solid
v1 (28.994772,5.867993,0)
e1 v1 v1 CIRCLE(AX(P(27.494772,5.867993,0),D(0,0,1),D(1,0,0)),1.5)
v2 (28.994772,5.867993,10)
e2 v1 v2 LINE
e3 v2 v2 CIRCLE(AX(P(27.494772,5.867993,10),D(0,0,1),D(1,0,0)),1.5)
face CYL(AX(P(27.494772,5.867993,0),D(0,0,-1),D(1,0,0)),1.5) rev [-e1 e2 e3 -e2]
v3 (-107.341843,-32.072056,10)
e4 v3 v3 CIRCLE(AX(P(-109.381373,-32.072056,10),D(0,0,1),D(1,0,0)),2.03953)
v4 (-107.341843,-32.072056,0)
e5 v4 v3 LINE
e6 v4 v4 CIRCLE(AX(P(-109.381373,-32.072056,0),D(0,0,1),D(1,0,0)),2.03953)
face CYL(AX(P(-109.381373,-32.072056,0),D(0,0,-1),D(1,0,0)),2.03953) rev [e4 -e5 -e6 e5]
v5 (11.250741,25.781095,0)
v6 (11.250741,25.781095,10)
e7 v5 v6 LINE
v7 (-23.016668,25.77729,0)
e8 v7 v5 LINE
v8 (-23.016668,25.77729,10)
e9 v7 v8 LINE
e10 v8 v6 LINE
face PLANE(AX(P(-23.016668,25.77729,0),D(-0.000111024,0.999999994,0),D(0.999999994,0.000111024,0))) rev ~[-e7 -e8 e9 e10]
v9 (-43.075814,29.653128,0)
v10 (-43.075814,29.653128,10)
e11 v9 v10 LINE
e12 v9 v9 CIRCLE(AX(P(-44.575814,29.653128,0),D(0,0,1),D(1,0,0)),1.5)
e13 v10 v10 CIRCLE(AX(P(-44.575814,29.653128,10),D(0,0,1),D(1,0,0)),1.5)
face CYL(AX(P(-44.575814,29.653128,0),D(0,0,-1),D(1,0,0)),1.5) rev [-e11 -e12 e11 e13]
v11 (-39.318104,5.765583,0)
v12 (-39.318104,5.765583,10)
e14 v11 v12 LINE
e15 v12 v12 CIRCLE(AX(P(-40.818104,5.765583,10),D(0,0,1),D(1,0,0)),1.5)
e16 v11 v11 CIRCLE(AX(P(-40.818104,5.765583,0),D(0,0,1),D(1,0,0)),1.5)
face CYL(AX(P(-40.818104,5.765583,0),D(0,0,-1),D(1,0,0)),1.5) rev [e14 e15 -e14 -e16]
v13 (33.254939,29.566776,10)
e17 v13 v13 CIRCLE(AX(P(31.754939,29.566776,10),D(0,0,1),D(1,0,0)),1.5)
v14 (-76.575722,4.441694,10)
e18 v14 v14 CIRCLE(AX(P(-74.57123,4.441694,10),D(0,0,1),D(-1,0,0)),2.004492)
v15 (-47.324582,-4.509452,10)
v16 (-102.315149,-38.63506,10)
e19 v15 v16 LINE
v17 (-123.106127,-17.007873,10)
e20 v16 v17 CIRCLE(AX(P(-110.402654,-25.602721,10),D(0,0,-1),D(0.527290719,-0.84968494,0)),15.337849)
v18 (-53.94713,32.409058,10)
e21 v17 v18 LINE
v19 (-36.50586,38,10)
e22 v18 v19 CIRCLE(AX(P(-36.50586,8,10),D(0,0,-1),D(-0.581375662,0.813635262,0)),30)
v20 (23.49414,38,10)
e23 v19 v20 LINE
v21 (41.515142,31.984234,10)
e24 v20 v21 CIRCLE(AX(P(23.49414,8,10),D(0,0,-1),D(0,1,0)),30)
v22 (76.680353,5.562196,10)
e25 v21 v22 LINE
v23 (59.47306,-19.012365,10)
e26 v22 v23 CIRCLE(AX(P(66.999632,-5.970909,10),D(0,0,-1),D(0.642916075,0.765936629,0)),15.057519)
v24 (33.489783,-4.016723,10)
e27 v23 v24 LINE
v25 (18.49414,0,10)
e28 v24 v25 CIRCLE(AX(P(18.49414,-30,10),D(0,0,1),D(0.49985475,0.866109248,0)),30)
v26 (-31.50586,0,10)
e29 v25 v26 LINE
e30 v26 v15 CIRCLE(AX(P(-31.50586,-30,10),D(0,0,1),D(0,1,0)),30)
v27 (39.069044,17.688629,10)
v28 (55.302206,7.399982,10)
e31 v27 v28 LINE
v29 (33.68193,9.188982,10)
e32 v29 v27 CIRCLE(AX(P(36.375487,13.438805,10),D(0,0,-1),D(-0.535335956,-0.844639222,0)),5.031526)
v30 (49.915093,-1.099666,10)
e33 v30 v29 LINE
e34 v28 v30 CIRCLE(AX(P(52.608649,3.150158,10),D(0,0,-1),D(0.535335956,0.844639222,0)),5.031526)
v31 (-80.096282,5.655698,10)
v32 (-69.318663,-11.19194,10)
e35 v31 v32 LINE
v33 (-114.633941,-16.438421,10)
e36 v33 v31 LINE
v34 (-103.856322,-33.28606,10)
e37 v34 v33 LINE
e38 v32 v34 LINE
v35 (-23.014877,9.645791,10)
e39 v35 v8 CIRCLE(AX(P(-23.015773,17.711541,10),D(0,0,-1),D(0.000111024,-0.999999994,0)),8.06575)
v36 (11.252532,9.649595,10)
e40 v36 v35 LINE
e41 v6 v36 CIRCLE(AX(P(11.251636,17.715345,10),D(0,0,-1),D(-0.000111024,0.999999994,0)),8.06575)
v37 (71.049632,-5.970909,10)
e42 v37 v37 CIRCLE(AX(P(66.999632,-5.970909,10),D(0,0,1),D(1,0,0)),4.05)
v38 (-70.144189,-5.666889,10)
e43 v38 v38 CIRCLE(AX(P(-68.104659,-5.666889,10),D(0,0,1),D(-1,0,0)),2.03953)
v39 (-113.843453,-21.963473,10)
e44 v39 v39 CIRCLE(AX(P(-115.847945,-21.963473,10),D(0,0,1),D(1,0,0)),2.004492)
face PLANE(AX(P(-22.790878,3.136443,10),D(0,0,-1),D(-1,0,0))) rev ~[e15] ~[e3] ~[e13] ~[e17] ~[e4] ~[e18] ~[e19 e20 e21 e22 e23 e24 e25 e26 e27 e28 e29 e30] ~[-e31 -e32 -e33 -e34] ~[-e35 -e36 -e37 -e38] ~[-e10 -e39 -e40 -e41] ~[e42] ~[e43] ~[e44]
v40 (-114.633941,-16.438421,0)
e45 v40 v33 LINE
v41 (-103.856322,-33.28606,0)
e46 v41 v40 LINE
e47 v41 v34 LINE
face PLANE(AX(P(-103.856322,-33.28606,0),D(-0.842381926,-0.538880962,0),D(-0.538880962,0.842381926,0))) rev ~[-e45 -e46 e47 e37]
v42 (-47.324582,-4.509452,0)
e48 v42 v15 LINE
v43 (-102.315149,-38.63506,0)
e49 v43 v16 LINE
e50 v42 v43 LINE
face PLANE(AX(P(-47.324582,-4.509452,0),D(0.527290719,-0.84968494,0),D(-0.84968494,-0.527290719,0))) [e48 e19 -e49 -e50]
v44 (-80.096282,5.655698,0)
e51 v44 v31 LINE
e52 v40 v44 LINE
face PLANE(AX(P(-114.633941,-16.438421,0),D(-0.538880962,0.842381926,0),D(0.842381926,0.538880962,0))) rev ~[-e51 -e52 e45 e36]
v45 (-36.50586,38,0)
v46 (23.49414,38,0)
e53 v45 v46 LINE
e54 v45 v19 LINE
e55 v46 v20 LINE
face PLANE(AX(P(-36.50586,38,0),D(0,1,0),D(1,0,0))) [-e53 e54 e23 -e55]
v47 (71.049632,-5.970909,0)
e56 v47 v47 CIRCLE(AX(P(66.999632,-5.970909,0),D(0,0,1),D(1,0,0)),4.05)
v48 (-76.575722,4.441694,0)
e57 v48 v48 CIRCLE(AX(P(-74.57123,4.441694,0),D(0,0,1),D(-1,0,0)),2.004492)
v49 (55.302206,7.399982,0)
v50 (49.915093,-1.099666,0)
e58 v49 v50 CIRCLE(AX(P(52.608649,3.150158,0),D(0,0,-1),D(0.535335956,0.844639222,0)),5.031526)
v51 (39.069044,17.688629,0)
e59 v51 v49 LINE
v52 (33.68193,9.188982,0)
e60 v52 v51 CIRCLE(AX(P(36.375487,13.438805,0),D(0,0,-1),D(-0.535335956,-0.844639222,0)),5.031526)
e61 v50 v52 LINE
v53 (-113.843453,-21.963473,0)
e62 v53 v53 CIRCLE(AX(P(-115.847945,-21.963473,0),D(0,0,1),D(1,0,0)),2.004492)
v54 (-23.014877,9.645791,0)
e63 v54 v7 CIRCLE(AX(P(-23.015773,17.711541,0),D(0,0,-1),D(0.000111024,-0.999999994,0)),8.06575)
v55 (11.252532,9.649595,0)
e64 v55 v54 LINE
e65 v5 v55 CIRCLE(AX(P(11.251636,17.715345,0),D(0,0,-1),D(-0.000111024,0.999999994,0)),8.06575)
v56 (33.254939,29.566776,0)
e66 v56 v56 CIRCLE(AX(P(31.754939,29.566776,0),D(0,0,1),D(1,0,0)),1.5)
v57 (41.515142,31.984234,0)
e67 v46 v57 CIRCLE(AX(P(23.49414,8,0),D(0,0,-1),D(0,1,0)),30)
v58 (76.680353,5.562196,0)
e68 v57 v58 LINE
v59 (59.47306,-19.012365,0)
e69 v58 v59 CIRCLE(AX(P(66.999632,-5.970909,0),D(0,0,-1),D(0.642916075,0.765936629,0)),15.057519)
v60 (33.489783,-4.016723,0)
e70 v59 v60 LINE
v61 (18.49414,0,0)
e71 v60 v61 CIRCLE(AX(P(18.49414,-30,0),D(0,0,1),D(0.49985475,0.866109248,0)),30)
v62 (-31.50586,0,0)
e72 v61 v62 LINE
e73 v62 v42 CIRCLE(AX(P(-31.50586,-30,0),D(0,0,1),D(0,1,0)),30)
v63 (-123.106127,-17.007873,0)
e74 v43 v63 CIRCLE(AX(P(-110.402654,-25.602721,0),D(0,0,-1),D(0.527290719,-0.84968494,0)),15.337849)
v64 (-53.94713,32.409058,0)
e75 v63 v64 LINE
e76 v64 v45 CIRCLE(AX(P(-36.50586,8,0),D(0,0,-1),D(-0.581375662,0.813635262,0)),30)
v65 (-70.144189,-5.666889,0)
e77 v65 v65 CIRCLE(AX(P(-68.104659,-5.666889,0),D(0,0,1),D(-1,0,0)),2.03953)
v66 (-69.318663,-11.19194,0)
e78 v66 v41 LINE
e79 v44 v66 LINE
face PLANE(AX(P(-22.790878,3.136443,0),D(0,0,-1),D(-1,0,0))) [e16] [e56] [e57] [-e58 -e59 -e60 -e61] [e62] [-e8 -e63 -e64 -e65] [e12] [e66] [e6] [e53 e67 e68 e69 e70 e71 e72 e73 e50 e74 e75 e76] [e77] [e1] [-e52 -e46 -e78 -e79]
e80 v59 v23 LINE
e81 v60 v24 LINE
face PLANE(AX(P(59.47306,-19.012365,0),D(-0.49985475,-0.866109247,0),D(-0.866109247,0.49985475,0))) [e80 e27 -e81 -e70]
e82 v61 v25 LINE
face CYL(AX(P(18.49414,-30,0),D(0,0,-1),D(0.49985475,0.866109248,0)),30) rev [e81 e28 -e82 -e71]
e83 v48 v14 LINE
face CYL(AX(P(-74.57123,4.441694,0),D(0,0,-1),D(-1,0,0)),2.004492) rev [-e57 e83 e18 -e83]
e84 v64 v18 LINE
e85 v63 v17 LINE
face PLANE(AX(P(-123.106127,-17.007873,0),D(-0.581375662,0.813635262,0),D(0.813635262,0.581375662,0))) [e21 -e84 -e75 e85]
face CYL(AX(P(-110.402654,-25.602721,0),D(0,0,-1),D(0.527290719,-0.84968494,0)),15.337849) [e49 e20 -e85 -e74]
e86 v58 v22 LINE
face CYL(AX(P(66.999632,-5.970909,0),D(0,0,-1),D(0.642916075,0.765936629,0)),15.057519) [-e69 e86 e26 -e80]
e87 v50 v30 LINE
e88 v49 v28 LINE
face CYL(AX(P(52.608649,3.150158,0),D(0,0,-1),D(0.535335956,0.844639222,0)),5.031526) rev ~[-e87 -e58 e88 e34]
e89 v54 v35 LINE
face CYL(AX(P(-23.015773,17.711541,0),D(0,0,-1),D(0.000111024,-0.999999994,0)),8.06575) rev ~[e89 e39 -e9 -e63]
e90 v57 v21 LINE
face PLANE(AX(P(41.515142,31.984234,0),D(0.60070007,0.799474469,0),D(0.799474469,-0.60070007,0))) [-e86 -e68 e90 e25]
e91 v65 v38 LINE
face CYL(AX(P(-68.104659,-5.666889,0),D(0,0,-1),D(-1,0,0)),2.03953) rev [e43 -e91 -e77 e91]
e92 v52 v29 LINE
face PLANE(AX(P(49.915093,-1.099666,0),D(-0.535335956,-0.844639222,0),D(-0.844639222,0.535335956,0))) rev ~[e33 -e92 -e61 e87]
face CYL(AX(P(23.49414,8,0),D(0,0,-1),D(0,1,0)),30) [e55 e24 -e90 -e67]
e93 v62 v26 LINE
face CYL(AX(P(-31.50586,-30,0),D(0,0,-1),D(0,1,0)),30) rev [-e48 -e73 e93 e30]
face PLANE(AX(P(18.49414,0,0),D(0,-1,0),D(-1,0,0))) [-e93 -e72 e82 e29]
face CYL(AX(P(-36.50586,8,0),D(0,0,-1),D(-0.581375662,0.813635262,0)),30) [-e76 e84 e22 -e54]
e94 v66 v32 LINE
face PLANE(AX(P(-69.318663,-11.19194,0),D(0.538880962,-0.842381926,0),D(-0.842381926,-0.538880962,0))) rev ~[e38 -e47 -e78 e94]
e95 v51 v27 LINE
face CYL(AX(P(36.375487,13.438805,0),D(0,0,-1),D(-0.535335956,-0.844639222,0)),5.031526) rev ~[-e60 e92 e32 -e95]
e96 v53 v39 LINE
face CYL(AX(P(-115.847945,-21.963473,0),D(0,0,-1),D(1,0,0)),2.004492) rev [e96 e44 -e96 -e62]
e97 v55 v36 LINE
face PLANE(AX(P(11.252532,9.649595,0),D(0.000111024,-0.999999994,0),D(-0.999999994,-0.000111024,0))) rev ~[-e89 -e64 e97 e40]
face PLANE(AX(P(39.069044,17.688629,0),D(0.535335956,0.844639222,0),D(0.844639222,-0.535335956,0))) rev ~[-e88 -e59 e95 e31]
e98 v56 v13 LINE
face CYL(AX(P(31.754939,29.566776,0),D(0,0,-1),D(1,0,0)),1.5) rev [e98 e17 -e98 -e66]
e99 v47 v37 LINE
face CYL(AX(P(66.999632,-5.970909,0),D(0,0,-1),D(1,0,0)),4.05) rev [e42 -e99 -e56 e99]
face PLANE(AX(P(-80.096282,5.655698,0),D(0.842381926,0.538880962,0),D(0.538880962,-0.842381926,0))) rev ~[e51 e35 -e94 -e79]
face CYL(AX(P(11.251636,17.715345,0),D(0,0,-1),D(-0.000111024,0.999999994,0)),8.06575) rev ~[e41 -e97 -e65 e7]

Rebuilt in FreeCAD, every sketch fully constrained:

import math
import FreeCAD as App
import Part
import Sketcher
from FreeCAD import Vector


def add_polygon(sketch, points):
    """Adds a closed chain of lines whose ends are joined by coincident constraints."""
    first, n = sketch.GeometryCount, len(points)
    for a, b in zip(points, points[1:] + points[:1]):
        sketch.addGeometry(Part.LineSegment(App.Vector(*a, 0), App.Vector(*b, 0)), False)
    for i in range(n):
        sketch.addConstraint(Sketcher.Constraint("Coincident", first + i, 2, first + (i + 1) % n, 1))

doc = App.newDocument("Part")
params = doc.addObject("Spreadsheet::Sheet", "Params")
for row, (alias, value) in enumerate([
    ("sketch1_diameter", "3 mm"),
    ("sketch1_diameter2", "3 mm"),
    ("sketch1_diameter3", "3 mm"),
    ("sketch1_diameter4", "3 mm"),
    ("sketch1_radius", "30 mm"),
    ("pad1_length", "10 mm"),
], start=1):
    params.set(f"A{row}", alias)
    params.set(f"B{row}", "=" + value)
    params.setAlias(f"B{row}", alias)

body = doc.addObject("PartDesign::Body", "Body")

sketch1 = doc.addObject("Sketcher::SketchObject", "Sketch")
body.addObject(sketch1)
sketch1.AttachmentSupport = (doc.XY_Plane, [""])
sketch1.MapMode = "FlatFace"
sketch1.addGeometry(Part.LineSegment(Vector(23.49414, 38, 0), Vector(-36.50586, 38, 0)), False)
sketch1.addGeometry(Part.ArcOfCircle(Part.Circle(Vector(-36.50586, 8, 0), Vector(0, 0, 1), 30), math.radians(90), math.radians(125.547358)), False)
sketch1.addGeometry(Part.LineSegment(Vector(-53.94713, 32.409058, 0), Vector(-123.106127, -17.007873, 0)), False)
sketch1.addGeometry(Part.ArcOfCircle(Part.Circle(Vector(-110.402654, -25.602721, 0), Vector(0, 0, 1), 15.337849), math.radians(145.918716), math.radians(301.822582)), False)
sketch1.addGeometry(Part.LineSegment(Vector(-102.315149, -38.63506, 0), Vector(-47.324582, -4.509452, 0)), False)
sketch1.addGeometry(Part.ArcOfCircle(Part.Circle(Vector(-31.50586, -30, 0), Vector(0, 0, 1), 30), math.radians(90), math.radians(121.822582)), False)
sketch1.addGeometry(Part.LineSegment(Vector(-31.50586, 0, 0), Vector(18.49414, 0, 0)), False)
sketch1.addGeometry(Part.ArcOfCircle(Part.Circle(Vector(18.49414, -30, 0), Vector(0, 0, 1), 30), math.radians(60.009609), math.radians(90)), False)
sketch1.addGeometry(Part.LineSegment(Vector(33.489783, -4.016723, 0), Vector(59.47306, -19.012365, 0)), False)
sketch1.addGeometry(Part.ArcOfCircle(Part.Circle(Vector(66.999632, -5.970909, 0), Vector(0, 0, 1), 15.057519), math.radians(-119.990391), math.radians(49.990391)), False)
sketch1.addGeometry(Part.LineSegment(Vector(76.680353, 5.562196, 0), Vector(41.515142, 31.984234, 0)), False)
sketch1.addGeometry(Part.ArcOfCircle(Part.Circle(Vector(23.49414, 8, 0), Vector(0, 0, 1), 30), math.radians(53.079947), math.radians(90)), False)
sketch1.addGeometry(Part.Circle(Vector(66.999632, -5.970909, 0), Vector(0, 0, 1), 4.05), False)
sketch1.addGeometry(Part.Circle(Vector(-109.381373, -32.072056, 0), Vector(0, 0, 1), 2.03953), False)
sketch1.addGeometry(Part.Circle(Vector(-115.847945, -21.963473, 0), Vector(0, 0, 1), 2.004492), False)
sketch1.addGeometry(Part.Circle(Vector(-68.104659, -5.666889, 0), Vector(0, 0, 1), 2.03953), False)
add_polygon(sketch1, [(-114.633941, -16.438421), (-80.096282, 5.655698), (-69.318663, -11.19194), (-103.856322, -33.28606)])
sketch1.addGeometry(Part.Circle(Vector(27.494772, 5.867993, 0), Vector(0, 0, 1), 1.5), False)
sketch1.addGeometry(Part.LineSegment(Vector(39.069044, 17.688629, 0), Vector(55.302206, 7.399982, 0)), False)
sketch1.addGeometry(Part.ArcOfCircle(Part.Circle(Vector(52.608649, 3.150158, 0), Vector(0, 0, 1), 5.031526), math.radians(-122.366698), math.radians(57.633302)), False)
sketch1.addGeometry(Part.LineSegment(Vector(49.915093, -1.099666, 0), Vector(33.68193, 9.188982, 0)), False)
sketch1.addGeometry(Part.ArcOfCircle(Part.Circle(Vector(36.375487, 13.438805, 0), Vector(0, 0, 1), 5.031526), math.radians(57.633302), math.radians(237.633302)), False)
sketch1.addGeometry(Part.Circle(Vector(31.754939, 29.566776, 0), Vector(0, 0, 1), 1.5), False)
sketch1.addGeometry(Part.LineSegment(Vector(-23.016668, 25.77729, 0), Vector(11.250741, 25.781095, 0)), False)
sketch1.addGeometry(Part.ArcOfCircle(Part.Circle(Vector(11.251636, 17.715345, 0), Vector(0, 0, 1), 8.06575), math.radians(-89.993639), math.radians(90.006361)), False)
sketch1.addGeometry(Part.LineSegment(Vector(11.252532, 9.649595, 0), Vector(-23.014877, 9.645791, 0)), False)
sketch1.addGeometry(Part.ArcOfCircle(Part.Circle(Vector(-23.015773, 17.711541, 0), Vector(0, 0, 1), 8.06575), math.radians(90.006361), math.radians(270.006361)), False)
sketch1.addGeometry(Part.Circle(Vector(-40.818104, 5.765583, 0), Vector(0, 0, 1), 1.5), False)
sketch1.addGeometry(Part.Circle(Vector(-74.57123, 4.441694, 0), Vector(0, 0, 1), 2.004492), False)
sketch1.addGeometry(Part.Circle(Vector(-44.575814, 29.653128, 0), Vector(0, 0, 1), 1.5), False)
sketch1.addConstraint([
    Sketcher.Constraint("Coincident", 0, 2, 1, 1),
    Sketcher.Constraint("Coincident", 1, 2, 2, 1),
    Sketcher.Constraint("Coincident", 2, 2, 3, 1),
    Sketcher.Constraint("Coincident", 3, 2, 4, 1),
    Sketcher.Constraint("Coincident", 4, 2, 5, 2),
    Sketcher.Constraint("Coincident", 5, 1, 6, 1),
    Sketcher.Constraint("Coincident", 6, 2, 7, 2),
    Sketcher.Constraint("Coincident", 7, 1, 8, 1),
    Sketcher.Constraint("Coincident", 8, 2, 9, 1),
    Sketcher.Constraint("Coincident", 9, 2, 10, 1),
    Sketcher.Constraint("Coincident", 10, 2, 11, 1),
    Sketcher.Constraint("Coincident", 11, 2, 0, 1),
    Sketcher.Constraint("Coincident", 21, 2, 22, 2),
    Sketcher.Constraint("Coincident", 22, 1, 23, 1),
    Sketcher.Constraint("Coincident", 23, 2, 24, 2),
    Sketcher.Constraint("Coincident", 24, 1, 21, 1),
    Sketcher.Constraint("Coincident", 26, 2, 27, 2),
    Sketcher.Constraint("Coincident", 27, 1, 28, 1),
    Sketcher.Constraint("Coincident", 28, 2, 29, 2),
    Sketcher.Constraint("Coincident", 29, 1, 26, 1),
    Sketcher.Constraint("Horizontal", 0),
    Sketcher.Constraint("Horizontal", 6),
    Sketcher.Constraint("Coincident", 12, 3, 9, 3),
    Sketcher.Constraint("PointOnObject", 5, 1, -1),
    Sketcher.Constraint("Diameter", 20, 3.0),
    Sketcher.Constraint("Diameter", 25, 3.0),
    Sketcher.Constraint("Diameter", 30, 3.0),
    Sketcher.Constraint("Diameter", 32, 3.0),
    Sketcher.Constraint("Radius", 1, 30.0),
    Sketcher.Constraint("Radius", 5, 30.0),
    Sketcher.Constraint("Radius", 7, 30.0),
    Sketcher.Constraint("Radius", 11, 30.0),
    Sketcher.Constraint("Diameter", 12, 8.1),
    Sketcher.Constraint("DistanceX", 0, 2, 0, 1, 60.0),
    Sketcher.Constraint("DistanceX", 6, 1, 6, 2, 50.0),
    Sketcher.Constraint("Distance", 2, 85.0),
    Sketcher.Constraint("Distance", 8, 30.0),
    Sketcher.Constraint("Distance", 16, 41.0),
    Sketcher.Constraint("Distance", 17, 20.0),
    Sketcher.Constraint("Distance", 18, 41.0),
    Sketcher.Constraint("Distance", 19, 20.0),
    Sketcher.Constraint("DistanceY", -1, 1, 1, 3, 8.0),
    Sketcher.Constraint("DistanceX", 1, 3, 5, 3, 5.0),
    Sketcher.Constraint("DistanceX", 5, 3, 7, 3, 50.0),
    Sketcher.Constraint("DistanceX", 7, 3, 11, 3, 5.0),
    Sketcher.Constraint("DistanceX", 1, 3, 5, 1, 5.0),
    Sketcher.Constraint("Diameter", 13, 4.07906),
    Sketcher.Constraint("Diameter", 15, 4.07906),
    Sketcher.Constraint("Radius", 3, 15.337849),
    Sketcher.Constraint("Radius", 9, 15.057519),
    Sketcher.Constraint("Radius", 27, 8.06575),
    Sketcher.Constraint("Radius", 29, 8.06575),
    Sketcher.Constraint("Diameter", 14, 4.008983),
    Sketcher.Constraint("Diameter", 31, 4.008983),
    Sketcher.Constraint("Radius", 22, 5.031526),
    Sketcher.Constraint("Radius", 24, 5.031526),
    Sketcher.Constraint("DistanceY", 3, 2, 18, 2, 5.349001),
    Sketcher.Constraint("DistanceY", -1, 1, 16, 2, 5.655698),
    Sketcher.Constraint("DistanceX", 15, 3, 1, 3, 31.598799),
    Sketcher.Constraint("DistanceX", 11, 3, 25, 3, 8.260799),
    Sketcher.Constraint("DistanceY", 14, 3, 2, 2, 4.955599),
    Sketcher.Constraint("DistanceX", 11, 2, 25, 3, 8.260799),
    Sketcher.Constraint("DistanceX", 16, 2, 4, 2, 32.7717),
    Sketcher.Constraint("DistanceY", 3, 3, 19, 2, 9.164299),
    Sketcher.Constraint("DistanceX", 24, 1, 10, 2, 2.446098),
    Sketcher.Constraint("DistanceX", 26, 2, 11, 2, 12.243399),
    Sketcher.Constraint("DistanceY", 20, 3, 26, 2, 19.913101),
    Sketcher.Constraint("Distance", 10, 43.985408),
    Sketcher.Constraint("Distance", 21, 19.219049),
    Sketcher.Constraint("Distance", 23, 19.219049),
    Sketcher.Constraint("Distance", 26, 34.26741),
    Sketcher.Constraint("Distance", 28, 34.26741),
    Sketcher.Constraint("DistanceX", 1, 3, -1, 1, 36.50586),
    Sketcher.Constraint("DistanceY", 3, 3, -1, 1, 25.602721),
    Sketcher.Constraint("DistanceY", 9, 3, -1, 1, 5.970909),
    Sketcher.Constraint("DistanceY", 15, 3, -1, 1, 5.666889),
    Sketcher.Constraint("DistanceX", -1, 1, 20, 3, 27.494772),
    Sketcher.Constraint("DistanceX", -1, 1, 22, 3, 52.608649),
    Sketcher.Constraint("DistanceY", -1, 1, 29, 3, 17.711541),
    Sketcher.Constraint("DistanceX", 31, 3, -1, 1, 74.57123),
    Sketcher.Constraint("DistanceX", 1, 2, -1, 1, 53.94713),
    Sketcher.Constraint("DistanceX", 3, 2, -1, 1, 102.315149),
    Sketcher.Constraint("DistanceY", 3, 2, -1, 1, 38.63506),
    Sketcher.Constraint("DistanceX", 4, 2, -1, 1, 47.324582),
    Sketcher.Constraint("DistanceX", -1, 1, 8, 2, 59.47306),
    Sketcher.Constraint("DistanceY", -1, 1, 21, 2, 7.399982),
    Sketcher.Constraint("DistanceX", -1, 1, 23, 2, 33.68193),
    Sketcher.Constraint("DistanceY", -1, 1, 23, 2, 9.188982),
    Sketcher.Constraint("DistanceY", -1, 1, 24, 1, 17.688629),
    Sketcher.Constraint("DistanceX", -1, 1, 27, 1, 11.252532),
    Sketcher.Constraint("DistanceX", 3, 3, 13, 3, 1.021281),
    Sketcher.Constraint("DistanceX", 14, 3, 3, 3, 5.44529),
    Sketcher.Constraint("DistanceX", 20, 3, 12, 3, 39.504861),
    Sketcher.Constraint("DistanceX", 25, 3, 24, 3, 4.620548),
    Sketcher.Constraint("DistanceY", 24, 3, 25, 3, 16.127971),
    Sketcher.Constraint("DistanceY", 27, 3, 25, 3, 11.851431),
    Sketcher.Constraint("DistanceX", 27, 3, 24, 3, 25.123851),
    Sketcher.Constraint("DistanceX", 29, 3, 27, 3, 34.267409),
    Sketcher.Constraint("DistanceX", 30, 3, 29, 3, 17.802331),
    Sketcher.Constraint("DistanceY", 30, 3, 27, 3, 11.949762),
    Sketcher.Constraint("DistanceY", 31, 3, 30, 3, 1.323889),
    Sketcher.Constraint("DistanceX", 32, 3, 30, 3, 3.757711),
    Sketcher.Constraint("DistanceY", 32, 3, 1, 2, 2.75593),
    Sketcher.Constraint("DistanceY", 13, 3, -1, 1, 32.072056),
])
sketch1.setExpression("Constraints[28]", "Params.sketch1_diameter")
sketch1.setExpression("Constraints[29]", "Params.sketch1_diameter2")
sketch1.setExpression("Constraints[30]", "Params.sketch1_diameter3")
sketch1.setExpression("Constraints[31]", "Params.sketch1_diameter4")
sketch1.setExpression("Constraints[32]", "Params.sketch1_radius")
pad1 = doc.addObject("PartDesign::Pad", "Pad")
body.addObject(pad1)
pad1.Profile = sketch1
pad1.setExpression("Length", "Params.pad1_length")

doc.recompute()
